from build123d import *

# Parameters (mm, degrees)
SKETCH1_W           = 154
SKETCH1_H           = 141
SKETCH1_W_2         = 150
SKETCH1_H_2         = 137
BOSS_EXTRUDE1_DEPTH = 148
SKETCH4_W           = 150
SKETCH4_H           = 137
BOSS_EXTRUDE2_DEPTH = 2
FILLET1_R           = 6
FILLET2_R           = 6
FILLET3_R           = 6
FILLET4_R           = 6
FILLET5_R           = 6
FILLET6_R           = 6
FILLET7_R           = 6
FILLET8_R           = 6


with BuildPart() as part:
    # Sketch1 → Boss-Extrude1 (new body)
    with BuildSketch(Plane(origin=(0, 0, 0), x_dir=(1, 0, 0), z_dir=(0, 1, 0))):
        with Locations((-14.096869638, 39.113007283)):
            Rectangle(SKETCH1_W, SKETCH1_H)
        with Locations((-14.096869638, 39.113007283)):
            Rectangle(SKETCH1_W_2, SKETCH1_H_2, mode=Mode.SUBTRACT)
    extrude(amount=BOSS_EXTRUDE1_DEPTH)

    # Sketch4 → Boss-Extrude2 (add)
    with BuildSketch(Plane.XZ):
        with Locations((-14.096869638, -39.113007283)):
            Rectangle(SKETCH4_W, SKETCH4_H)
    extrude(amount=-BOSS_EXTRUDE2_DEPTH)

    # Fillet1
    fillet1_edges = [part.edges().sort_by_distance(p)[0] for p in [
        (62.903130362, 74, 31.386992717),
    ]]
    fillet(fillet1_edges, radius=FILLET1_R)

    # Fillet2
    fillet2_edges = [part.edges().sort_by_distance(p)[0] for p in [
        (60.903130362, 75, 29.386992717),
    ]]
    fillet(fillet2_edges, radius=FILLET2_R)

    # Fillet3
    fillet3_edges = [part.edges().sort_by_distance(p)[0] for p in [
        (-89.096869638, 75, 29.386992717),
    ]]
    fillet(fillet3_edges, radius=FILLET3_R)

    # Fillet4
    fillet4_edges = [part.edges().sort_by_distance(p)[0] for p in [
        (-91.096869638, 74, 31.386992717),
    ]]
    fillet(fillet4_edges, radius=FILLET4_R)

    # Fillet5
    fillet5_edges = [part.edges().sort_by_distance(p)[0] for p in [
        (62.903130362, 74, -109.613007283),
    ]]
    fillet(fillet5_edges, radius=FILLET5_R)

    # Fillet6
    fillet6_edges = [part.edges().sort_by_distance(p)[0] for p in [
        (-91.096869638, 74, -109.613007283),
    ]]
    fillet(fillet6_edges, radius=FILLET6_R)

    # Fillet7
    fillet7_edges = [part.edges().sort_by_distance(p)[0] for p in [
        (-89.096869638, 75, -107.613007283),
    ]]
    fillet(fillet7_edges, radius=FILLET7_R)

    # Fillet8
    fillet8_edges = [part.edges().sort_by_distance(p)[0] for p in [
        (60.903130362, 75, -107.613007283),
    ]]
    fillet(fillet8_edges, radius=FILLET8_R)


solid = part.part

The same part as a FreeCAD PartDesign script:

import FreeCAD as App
import Part
import Sketcher


def edges_at(feature, points):
    """Names of the edges that pass closest to the given points."""
    edges = feature.Shape.Edges
    near = lambda p: min(range(len(edges)), key=lambda i: edges[i].distToShape(Part.Vertex(*p))[0])
    return sorted({f"Edge{near(p) + 1}" for p in points})


def add_polygon(sketch, points):
    """Adds a closed chain of lines whose ends are joined by coincident constraints."""
    first, n = sketch.GeometryCount, len(points)
    for a, b in zip(points, points[1:] + points[:1]):
        sketch.addGeometry(Part.LineSegment(App.Vector(*a, 0), App.Vector(*b, 0)), False)
    for i in range(n):
        sketch.addConstraint(Sketcher.Constraint("Coincident", first + i, 2, first + (i + 1) % n, 1))

doc = App.newDocument("Part")
body = doc.addObject("PartDesign::Body", "Body")

# Sketch on XZ plane
sketch1 = body.newObject("Sketcher::SketchObject", "Sketch")
sketch1.AttachmentSupport = (doc.getObject("XZ_Plane"), [""])
sketch1.MapMode = "FlatFace"
add_polygon(sketch1, [(-91, -110), (-91, 31), (63, 31), (63, -110)])  # lines 0-3
add_polygon(sketch1, [(61, 29), (-89, 29), (-89, -108), (61, -108)])  # lines 4-7
sketch1.addConstraint(Sketcher.Constraint("Vertical", 0))
sketch1.addConstraint(Sketcher.Constraint("Horizontal", 1))
sketch1.addConstraint(Sketcher.Constraint("Vertical", 2))
sketch1.addConstraint(Sketcher.Constraint("Horizontal", 3))
sketch1.addConstraint(Sketcher.Constraint("Horizontal", 4))
sketch1.addConstraint(Sketcher.Constraint("Vertical", 5))
sketch1.addConstraint(Sketcher.Constraint("Horizontal", 6))
sketch1.addConstraint(Sketcher.Constraint("Vertical", 7))
sketch1.addConstraint(Sketcher.Constraint("DistanceX", 1, 1, 1, 2, 154.0))
sketch1.addConstraint(Sketcher.Constraint("DistanceX", 4, 2, 4, 1, 150.0))
sketch1.addConstraint(Sketcher.Constraint("DistanceY", 0, 1, 0, 2, 141.0))
sketch1.addConstraint(Sketcher.Constraint("DistanceY", 5, 2, 5, 1, 137.0))
sketch1.addConstraint(Sketcher.Constraint("DistanceX", 0, 2, 4, 2, 2.0))
sketch1.addConstraint(Sketcher.Constraint("DistanceY", 4, 2, 0, 2, 2.0))
sketch1.addConstraint(Sketcher.Constraint("DistanceX", 0, 2, -1, 1, 91.09687))
sketch1.addConstraint(Sketcher.Constraint("DistanceY", -1, 1, 0, 2, 31.386993))
pad1 = body.newObject("PartDesign::Pad", "Pad")
pad1.Profile = sketch1
pad1.Length = 148
pad1.Reversed = True

# Sketch on XZ plane
sketch2 = body.newObject("Sketcher::SketchObject", "Sketch001")
sketch2.AttachmentSupport = (doc.getObject("XZ_Plane"), [""])
sketch2.MapMode = "FlatFace"
add_polygon(sketch2, [(-89, 29), (-89, -108), (61, -108), (61, 29)])  # lines 0-3
sketch2.addConstraint(Sketcher.Constraint("Vertical", 0))
sketch2.addConstraint(Sketcher.Constraint("Horizontal", 1))
sketch2.addConstraint(Sketcher.Constraint("Vertical", 2))
sketch2.addConstraint(Sketcher.Constraint("Horizontal", 3))
sketch2.addConstraint(Sketcher.Constraint("DistanceX", 1, 1, 1, 2, 150.0))
sketch2.addConstraint(Sketcher.Constraint("DistanceY", 0, 2, 0, 1, 137.0))
sketch2.addConstraint(Sketcher.Constraint("DistanceX", 0, 2, -1, 1, 89.09687))
sketch2.addConstraint(Sketcher.Constraint("DistanceY", 0, 2, -1, 1, 107.613007))
pad2 = body.newObject("PartDesign::Pad", "Pad001")
pad2.Profile = sketch2
pad2.Length = 2
pad2.Reversed = True
doc.recompute()

fillet = body.newObject("PartDesign::Fillet", "Fillet")
fillet.Base = (pad2, edges_at(pad2, [(62.903, 74, 31.387)]))
fillet.Radius = 6
doc.recompute()

fillet2 = body.newObject("PartDesign::Fillet", "Fillet001")
fillet2.Base = (fillet, edges_at(fillet, [(60.903, 75, 29.387)]))
fillet2.Radius = 6
doc.recompute()

fillet3 = body.newObject("PartDesign::Fillet", "Fillet002")
fillet3.Base = (fillet2, edges_at(fillet2, [(-89.097, 75, 29.387)]))
fillet3.Radius = 6
doc.recompute()

fillet4 = body.newObject("PartDesign::Fillet", "Fillet003")
fillet4.Base = (fillet3, edges_at(fillet3, [(-91.097, 74, 31.387)]))
fillet4.Radius = 6
doc.recompute()

fillet5 = body.newObject("PartDesign::Fillet", "Fillet004")
fillet5.Base = (fillet4, edges_at(fillet4, [(62.903, 74, -109.613)]))
fillet5.Radius = 6
doc.recompute()

fillet6 = body.newObject("PartDesign::Fillet", "Fillet005")
fillet6.Base = (fillet5, edges_at(fillet5, [(-91.097, 74, -109.613)]))
fillet6.Radius = 6
doc.recompute()

fillet7 = body.newObject("PartDesign::Fillet", "Fillet006")
fillet7.Base = (fillet6, edges_at(fillet6, [(-89.097, 75, -107.613)]))
fillet7.Radius = 6
doc.recompute()

fillet8 = body.newObject("PartDesign::Fillet", "Fillet007")
fillet8.Base = (fillet7, edges_at(fillet7, [(60.903, 75, -107.613)]))
fillet8.Radius = 6

doc.recompute()
